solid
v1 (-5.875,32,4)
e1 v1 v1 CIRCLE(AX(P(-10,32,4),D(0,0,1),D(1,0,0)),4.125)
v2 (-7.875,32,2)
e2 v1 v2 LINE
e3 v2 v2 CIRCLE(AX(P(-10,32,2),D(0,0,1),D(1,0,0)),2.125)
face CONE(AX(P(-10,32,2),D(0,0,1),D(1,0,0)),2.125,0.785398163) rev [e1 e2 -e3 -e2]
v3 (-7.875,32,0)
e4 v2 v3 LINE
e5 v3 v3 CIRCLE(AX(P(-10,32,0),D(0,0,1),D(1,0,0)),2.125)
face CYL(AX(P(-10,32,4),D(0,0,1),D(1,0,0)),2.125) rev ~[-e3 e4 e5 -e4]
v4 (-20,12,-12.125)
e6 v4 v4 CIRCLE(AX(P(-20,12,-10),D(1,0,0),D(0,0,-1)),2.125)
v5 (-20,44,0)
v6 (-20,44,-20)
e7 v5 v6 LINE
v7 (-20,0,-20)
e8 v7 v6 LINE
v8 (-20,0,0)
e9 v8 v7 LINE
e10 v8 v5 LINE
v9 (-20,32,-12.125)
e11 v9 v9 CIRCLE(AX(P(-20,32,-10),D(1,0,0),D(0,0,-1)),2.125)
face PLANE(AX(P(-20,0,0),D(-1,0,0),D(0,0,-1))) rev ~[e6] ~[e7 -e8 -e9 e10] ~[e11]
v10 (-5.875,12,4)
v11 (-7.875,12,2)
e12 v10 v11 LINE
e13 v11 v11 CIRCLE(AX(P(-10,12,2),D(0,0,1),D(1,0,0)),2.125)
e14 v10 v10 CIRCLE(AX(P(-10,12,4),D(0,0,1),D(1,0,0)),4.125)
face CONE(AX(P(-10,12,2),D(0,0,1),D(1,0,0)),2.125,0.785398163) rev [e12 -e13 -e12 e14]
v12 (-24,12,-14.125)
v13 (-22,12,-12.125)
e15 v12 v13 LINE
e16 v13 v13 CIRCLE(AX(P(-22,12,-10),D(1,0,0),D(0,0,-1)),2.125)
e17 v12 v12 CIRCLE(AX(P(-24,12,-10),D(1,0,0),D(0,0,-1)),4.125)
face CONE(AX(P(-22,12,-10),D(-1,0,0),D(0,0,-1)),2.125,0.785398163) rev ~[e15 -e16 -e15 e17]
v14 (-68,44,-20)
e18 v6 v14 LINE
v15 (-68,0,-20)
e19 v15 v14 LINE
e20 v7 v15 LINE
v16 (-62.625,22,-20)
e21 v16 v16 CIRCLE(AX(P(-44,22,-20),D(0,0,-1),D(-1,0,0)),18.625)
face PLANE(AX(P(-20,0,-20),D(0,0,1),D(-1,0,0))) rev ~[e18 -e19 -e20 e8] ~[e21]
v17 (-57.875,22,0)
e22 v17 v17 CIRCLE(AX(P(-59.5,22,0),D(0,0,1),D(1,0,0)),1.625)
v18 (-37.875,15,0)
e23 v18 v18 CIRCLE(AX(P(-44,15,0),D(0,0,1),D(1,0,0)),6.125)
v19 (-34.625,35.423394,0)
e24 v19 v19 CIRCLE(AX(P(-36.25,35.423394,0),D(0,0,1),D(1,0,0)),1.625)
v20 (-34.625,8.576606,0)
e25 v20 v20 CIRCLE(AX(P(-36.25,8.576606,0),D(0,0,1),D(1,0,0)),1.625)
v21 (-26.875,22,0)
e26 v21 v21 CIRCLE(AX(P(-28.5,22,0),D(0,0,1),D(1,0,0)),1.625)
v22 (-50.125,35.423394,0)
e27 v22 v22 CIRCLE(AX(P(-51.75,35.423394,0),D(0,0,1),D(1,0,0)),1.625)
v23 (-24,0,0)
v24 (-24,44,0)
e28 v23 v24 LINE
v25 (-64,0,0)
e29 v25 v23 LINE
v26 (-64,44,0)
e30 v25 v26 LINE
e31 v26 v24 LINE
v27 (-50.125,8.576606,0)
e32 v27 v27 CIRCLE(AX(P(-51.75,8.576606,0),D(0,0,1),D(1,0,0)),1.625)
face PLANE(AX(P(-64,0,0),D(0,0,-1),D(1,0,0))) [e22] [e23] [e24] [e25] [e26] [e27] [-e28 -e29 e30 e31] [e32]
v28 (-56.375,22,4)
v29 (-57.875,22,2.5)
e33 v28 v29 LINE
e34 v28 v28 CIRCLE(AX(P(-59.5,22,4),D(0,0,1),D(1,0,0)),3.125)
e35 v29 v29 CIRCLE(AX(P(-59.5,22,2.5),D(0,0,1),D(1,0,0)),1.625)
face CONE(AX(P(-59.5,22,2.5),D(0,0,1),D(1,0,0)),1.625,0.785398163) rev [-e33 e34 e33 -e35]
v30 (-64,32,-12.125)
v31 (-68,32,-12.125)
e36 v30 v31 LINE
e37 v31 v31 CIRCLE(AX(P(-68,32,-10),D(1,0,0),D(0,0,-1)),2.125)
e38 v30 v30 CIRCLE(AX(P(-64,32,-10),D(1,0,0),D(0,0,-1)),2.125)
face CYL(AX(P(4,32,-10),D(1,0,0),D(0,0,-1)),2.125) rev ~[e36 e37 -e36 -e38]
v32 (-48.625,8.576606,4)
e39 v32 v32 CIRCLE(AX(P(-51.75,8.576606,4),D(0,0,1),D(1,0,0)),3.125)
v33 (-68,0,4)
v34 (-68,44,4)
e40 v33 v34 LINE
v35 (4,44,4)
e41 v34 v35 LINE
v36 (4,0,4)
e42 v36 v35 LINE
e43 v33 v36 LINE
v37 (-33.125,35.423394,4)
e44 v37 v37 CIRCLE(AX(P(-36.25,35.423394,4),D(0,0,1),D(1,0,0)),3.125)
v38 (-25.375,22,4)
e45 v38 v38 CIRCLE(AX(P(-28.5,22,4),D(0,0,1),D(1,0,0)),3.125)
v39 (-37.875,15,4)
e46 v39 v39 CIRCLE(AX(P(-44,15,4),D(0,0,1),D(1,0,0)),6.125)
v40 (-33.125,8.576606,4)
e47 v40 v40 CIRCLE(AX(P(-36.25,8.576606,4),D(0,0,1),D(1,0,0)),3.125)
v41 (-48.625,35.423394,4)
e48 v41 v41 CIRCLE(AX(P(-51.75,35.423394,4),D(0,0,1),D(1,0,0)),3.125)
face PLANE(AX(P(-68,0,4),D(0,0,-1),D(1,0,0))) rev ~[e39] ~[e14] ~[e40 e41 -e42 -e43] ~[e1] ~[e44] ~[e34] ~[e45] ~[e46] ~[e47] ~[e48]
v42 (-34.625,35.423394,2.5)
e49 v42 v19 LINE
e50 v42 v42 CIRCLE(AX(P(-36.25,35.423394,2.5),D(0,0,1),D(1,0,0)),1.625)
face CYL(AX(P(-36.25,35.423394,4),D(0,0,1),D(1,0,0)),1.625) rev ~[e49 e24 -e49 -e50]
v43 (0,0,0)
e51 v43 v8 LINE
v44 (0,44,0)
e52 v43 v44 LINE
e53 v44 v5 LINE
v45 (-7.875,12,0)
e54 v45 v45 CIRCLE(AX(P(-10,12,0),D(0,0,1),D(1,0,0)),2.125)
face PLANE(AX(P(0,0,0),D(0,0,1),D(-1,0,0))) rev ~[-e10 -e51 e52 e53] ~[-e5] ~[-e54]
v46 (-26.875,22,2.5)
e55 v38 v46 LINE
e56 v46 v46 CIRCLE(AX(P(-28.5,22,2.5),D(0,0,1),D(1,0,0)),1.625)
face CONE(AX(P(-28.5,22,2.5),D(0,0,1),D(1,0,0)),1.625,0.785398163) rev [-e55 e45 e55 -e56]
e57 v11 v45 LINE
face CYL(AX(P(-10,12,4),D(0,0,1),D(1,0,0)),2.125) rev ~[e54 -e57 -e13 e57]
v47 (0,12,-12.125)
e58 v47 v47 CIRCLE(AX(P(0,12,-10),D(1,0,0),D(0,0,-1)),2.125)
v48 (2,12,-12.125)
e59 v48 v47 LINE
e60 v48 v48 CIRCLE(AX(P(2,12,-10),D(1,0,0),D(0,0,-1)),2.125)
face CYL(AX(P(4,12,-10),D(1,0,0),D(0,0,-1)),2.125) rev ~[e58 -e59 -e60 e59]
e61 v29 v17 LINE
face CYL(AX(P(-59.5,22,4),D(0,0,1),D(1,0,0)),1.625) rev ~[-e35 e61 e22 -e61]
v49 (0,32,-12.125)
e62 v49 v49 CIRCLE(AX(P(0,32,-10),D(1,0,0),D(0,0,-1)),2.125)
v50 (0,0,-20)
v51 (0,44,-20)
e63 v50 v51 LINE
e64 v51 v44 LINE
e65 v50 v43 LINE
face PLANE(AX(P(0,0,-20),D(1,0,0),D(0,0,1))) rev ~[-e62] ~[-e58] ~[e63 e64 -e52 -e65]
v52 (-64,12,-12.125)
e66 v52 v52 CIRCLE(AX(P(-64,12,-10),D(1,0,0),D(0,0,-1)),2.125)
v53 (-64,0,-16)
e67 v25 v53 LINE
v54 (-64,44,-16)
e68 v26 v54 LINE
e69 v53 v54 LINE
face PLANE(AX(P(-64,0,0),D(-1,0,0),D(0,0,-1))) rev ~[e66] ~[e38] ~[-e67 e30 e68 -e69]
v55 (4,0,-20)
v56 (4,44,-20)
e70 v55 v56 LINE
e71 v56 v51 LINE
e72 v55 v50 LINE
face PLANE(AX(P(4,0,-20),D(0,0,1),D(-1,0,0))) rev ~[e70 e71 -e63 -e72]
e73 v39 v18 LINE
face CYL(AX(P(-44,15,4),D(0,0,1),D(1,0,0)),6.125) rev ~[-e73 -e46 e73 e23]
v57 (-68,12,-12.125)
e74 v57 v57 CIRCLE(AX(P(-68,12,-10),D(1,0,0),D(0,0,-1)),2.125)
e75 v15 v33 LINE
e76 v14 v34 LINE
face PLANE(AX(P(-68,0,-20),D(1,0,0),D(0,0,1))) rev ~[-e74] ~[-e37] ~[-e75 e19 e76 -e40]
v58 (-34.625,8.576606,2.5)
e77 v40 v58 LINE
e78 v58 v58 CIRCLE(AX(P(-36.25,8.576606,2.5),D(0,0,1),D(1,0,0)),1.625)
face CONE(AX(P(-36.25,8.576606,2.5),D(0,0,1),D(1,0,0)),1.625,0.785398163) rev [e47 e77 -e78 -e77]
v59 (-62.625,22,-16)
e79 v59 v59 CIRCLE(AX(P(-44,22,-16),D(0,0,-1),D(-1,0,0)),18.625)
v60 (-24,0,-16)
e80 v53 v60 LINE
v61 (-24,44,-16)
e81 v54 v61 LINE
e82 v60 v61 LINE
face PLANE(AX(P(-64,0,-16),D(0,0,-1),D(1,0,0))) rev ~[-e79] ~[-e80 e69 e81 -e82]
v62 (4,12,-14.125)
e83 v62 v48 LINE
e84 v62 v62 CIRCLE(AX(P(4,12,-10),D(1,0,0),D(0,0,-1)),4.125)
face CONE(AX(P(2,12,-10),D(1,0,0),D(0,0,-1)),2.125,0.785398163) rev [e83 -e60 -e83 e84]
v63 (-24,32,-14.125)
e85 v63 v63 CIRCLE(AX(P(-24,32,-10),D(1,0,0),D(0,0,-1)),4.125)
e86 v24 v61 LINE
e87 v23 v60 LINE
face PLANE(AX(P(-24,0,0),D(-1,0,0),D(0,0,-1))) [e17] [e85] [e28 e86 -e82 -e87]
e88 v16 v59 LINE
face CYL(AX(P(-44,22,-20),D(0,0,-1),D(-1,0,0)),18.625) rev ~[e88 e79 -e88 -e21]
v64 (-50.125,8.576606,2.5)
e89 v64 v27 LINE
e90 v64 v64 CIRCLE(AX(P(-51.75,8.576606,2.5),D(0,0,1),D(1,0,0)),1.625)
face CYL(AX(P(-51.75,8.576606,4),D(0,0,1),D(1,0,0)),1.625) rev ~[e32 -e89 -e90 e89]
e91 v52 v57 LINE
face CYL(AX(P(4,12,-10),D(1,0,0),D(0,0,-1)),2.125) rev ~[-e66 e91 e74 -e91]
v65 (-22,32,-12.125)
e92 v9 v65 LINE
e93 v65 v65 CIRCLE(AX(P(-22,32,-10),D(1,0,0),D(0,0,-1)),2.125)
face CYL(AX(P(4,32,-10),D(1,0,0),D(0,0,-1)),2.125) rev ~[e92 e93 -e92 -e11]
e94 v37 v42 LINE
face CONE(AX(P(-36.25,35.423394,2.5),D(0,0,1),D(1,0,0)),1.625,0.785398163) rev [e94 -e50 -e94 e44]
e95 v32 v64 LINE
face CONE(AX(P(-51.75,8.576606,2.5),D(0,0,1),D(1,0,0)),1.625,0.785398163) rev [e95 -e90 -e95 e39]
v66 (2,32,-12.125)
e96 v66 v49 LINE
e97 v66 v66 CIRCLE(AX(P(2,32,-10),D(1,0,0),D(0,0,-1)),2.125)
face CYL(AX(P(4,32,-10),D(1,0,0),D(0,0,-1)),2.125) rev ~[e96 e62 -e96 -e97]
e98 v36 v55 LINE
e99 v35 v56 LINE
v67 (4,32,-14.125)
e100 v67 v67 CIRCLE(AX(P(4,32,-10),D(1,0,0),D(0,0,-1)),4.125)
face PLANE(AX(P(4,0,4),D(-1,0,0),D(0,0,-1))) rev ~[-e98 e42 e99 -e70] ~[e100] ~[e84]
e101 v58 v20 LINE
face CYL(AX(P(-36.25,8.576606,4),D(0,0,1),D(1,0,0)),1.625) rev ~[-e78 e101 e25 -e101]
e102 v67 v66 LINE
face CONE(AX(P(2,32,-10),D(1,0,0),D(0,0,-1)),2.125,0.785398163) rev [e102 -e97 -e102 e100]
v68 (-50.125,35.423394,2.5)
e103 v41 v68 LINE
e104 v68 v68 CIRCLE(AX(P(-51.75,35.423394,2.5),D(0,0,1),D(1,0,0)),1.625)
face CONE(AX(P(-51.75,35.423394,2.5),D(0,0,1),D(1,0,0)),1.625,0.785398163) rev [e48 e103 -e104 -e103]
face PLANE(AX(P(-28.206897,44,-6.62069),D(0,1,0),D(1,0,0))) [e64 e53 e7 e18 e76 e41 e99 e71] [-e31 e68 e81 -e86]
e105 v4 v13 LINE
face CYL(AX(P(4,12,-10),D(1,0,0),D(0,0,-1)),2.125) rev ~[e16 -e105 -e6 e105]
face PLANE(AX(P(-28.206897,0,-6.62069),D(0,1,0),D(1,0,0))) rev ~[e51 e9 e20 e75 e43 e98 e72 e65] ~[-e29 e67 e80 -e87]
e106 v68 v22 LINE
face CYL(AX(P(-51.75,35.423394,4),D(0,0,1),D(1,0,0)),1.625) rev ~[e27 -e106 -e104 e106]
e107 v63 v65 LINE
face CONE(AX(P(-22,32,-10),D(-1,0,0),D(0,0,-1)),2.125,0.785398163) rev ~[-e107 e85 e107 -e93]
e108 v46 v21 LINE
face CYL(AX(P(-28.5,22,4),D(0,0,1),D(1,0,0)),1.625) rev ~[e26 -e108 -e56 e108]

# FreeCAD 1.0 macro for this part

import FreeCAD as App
import Part
import Sketcher
from FreeCAD import Vector
Q = App.Units.Quantity


def edges_at(feature, points):
    """Names of the edges that pass closest to the given points."""
    edges = feature.Shape.Edges
    near = lambda p: min(range(len(edges)), key=lambda i: edges[i].distToShape(Part.Vertex(*p))[0])
    return sorted({f"Edge{near(p) + 1}" for p in points})


def add_polygon(sketch, points):
    """Adds a closed chain of lines whose ends are joined by coincident constraints."""
    first, n = sketch.GeometryCount, len(points)
    for a, b in zip(points, points[1:] + points[:1]):
        sketch.addGeometry(Part.LineSegment(App.Vector(*a, 0), App.Vector(*b, 0)), False)
    for i in range(n):
        sketch.addConstraint(Sketcher.Constraint("Coincident", first + i, 2, first + (i + 1) % n, 1))

doc = App.newDocument("Part")
params = doc.addObject("Spreadsheet::Sheet", "Params")
for row, (alias, value) in enumerate([
    ("sketch1_width", "4 mm"),
    ("sketch1_width2", "20 mm"),
    ("sketch1_width3", "48 mm"),
    ("sketch1_width4", "40 mm"),
    ("sketch1_height", "24 mm"),
    ("pad1_length", "44 mm"),
    ("sketch2_diameter", "37.25 mm"),
    ("sketch3_diameter", "12.25 mm"),
    ("sketch4_diameter", "3.25 mm"),
    ("sketch5_diameter", "3.25 mm"),
    ("sketch6_diameter", "3.25 mm"),
    ("sketch7_diameter", "3.25 mm"),
    ("sketch8_diameter", "3.25 mm"),
    ("sketch9_diameter", "3.25 mm"),
    ("sketch10_diameter", "4.25 mm"),
    ("sketch11_diameter", "4.25 mm"),
    ("chamfer_size", "2 mm"),
    ("chamfer2_size", "1.5 mm"),
], start=1):
    params.set(f"A{row}", alias)
    params.set(f"B{row}", "=" + value)
    params.setAlias(f"B{row}", alias)

body = doc.addObject("PartDesign::Body", "Body")

# Sketch on XZ plane
sketch1 = body.newObject("Sketcher::SketchObject", "Sketch")
sketch1.AttachmentSupport = (doc.getObject("XZ_Plane"), [""])
sketch1.MapMode = "FlatFace"
add_polygon(sketch1, [(4, -20), (0, -20), (0, 0), (-20, 0), (-20, -20), (-68, -20), (-68, 4), (4, 4)])  # lines 0-7
add_polygon(sketch1, [(-24, 0), (-64, 0), (-64, -16), (-24, -16)])  # lines 8-11
sketch1.addConstraint(Sketcher.Constraint("Horizontal", 0))
sketch1.addConstraint(Sketcher.Constraint("Vertical", 1))
sketch1.addConstraint(Sketcher.Constraint("Horizontal", 2))
sketch1.addConstraint(Sketcher.Constraint("Vertical", 3))
sketch1.addConstraint(Sketcher.Constraint("Horizontal", 4))
sketch1.addConstraint(Sketcher.Constraint("Vertical", 5))
sketch1.addConstraint(Sketcher.Constraint("Horizontal", 6))
sketch1.addConstraint(Sketcher.Constraint("Vertical", 7))
sketch1.addConstraint(Sketcher.Constraint("Horizontal", 8))
sketch1.addConstraint(Sketcher.Constraint("Vertical", 9))
sketch1.addConstraint(Sketcher.Constraint("Horizontal", 10))
sketch1.addConstraint(Sketcher.Constraint("Vertical", 11))
sketch1.addConstraint(Sketcher.Constraint("Coincident", 1, 2, -1, 1))
sketch1.addConstraint(Sketcher.Constraint("PointOnObject", 8, 2, -1))
sketch1.addConstraint(Sketcher.Constraint("Horizontal", 0, 2, 3, 2))
sketch1.addConstraint(Sketcher.Constraint("Equal", 2, 1))
sketch1.addConstraint(Sketcher.Constraint("DistanceX", 0, 2, 0, 1, Q("4 mm")))
sketch1.addConstraint(Sketcher.Constraint("DistanceX", 2, 2, 2, 1, Q("20 mm")))
sketch1.addConstraint(Sketcher.Constraint("DistanceX", 4, 2, 4, 1, Q("48 mm")))
sketch1.addConstraint(Sketcher.Constraint("DistanceX", 8, 2, 8, 1, Q("40 mm")))
sketch1.addConstraint(Sketcher.Constraint("DistanceY", 5, 1, 5, 2, Q("24 mm")))
sketch1.addConstraint(Sketcher.Constraint("DistanceY", 9, 2, 9, 1, Q("16 mm")))
sketch1.addConstraint(Sketcher.Constraint("DistanceX", 8, 2, -1, 1, Q("64 mm")))
sketch1.setExpression("Constraints[28]", "Params.sketch1_width")
sketch1.setExpression("Constraints[29]", "Params.sketch1_width2")
sketch1.setExpression("Constraints[30]", "Params.sketch1_width3")
sketch1.setExpression("Constraints[31]", "Params.sketch1_width4")
sketch1.setExpression("Constraints[32]", "Params.sketch1_height")
pad1 = body.newObject("PartDesign::Pad", "Pad")
pad1.Profile = sketch1
pad1.setExpression("Length", "Params.pad1_length")
pad1.Reversed = True

# Sketch on XY plane
sketch2 = body.newObject("Sketcher::SketchObject", "Sketch001")
sketch2.AttachmentSupport = (doc.getObject("XY_Plane"), [""])
sketch2.MapMode = "FlatFace"
sketch2.AttachmentOffset = App.Placement(Vector(0, 0, -20), App.Rotation())
sketch2.addGeometry(Part.Circle(Vector(-44, 22, 0), Vector(0, 0, 1), 19), False)
sketch2.addConstraint(Sketcher.Constraint("Diameter", 0, Q("37.25 mm")))
sketch2.addConstraint(Sketcher.Constraint("DistanceX", 0, 3, -1, 1, Q("44 mm")))
sketch2.addConstraint(Sketcher.Constraint("DistanceY", -1, 1, 0, 3, Q("22 mm")))
sketch2.setExpression("Constraints[0]", "Params.sketch2_diameter")
pocket1 = body.newObject("PartDesign::Pocket", "Pocket")
pocket1.Profile = sketch2
pocket1.Type = "UpToFirst"
pocket1.Reversed = True

# Sketch on XY plane
sketch3 = body.newObject("Sketcher::SketchObject", "Sketch002")
sketch3.AttachmentSupport = (doc.getObject("XY_Plane"), [""])
sketch3.MapMode = "FlatFace"
sketch3.AttachmentOffset = App.Placement(Vector(0, 0, 4), App.Rotation())
sketch3.addGeometry(Part.Circle(Vector(-44, 15, 0), Vector(0, 0, 1), 6), False)
sketch3.addConstraint(Sketcher.Constraint("Diameter", 0, Q("12.25 mm")))
sketch3.addConstraint(Sketcher.Constraint("DistanceX", 0, 3, -1, 1, Q("44 mm")))
sketch3.addConstraint(Sketcher.Constraint("DistanceY", -1, 1, 0, 3, Q("15 mm")))
sketch3.setExpression("Constraints[0]", "Params.sketch3_diameter")
pocket2 = body.newObject("PartDesign::Pocket", "Pocket001")
pocket2.Profile = sketch3
pocket2.Type = "UpToFirst"

# Sketch on XY plane
sketch4 = body.newObject("Sketcher::SketchObject", "Sketch003")
sketch4.AttachmentSupport = (doc.getObject("XY_Plane"), [""])
sketch4.MapMode = "FlatFace"
sketch4.AttachmentOffset = App.Placement(Vector(0, 0, 4), App.Rotation())
sketch4.addGeometry(Part.Circle(Vector(-51.8, 35.4, 0), Vector(0, 0, 1), 1.6), False)
sketch4.addConstraint(Sketcher.Constraint("Diameter", 0, Q("3.25 mm")))
sketch4.addConstraint(Sketcher.Constraint("DistanceX", 0, 3, -1, 1, Q("51.75 mm")))
sketch4.addConstraint(Sketcher.Constraint("DistanceY", -1, 1, 0, 3, Q("35.423394 mm")))
sketch4.setExpression("Constraints[0]", "Params.sketch4_diameter")
pocket3 = body.newObject("PartDesign::Pocket", "Pocket002")
pocket3.Profile = sketch4
pocket3.Type = "UpToFirst"

# Sketch on XY plane
sketch5 = body.newObject("Sketcher::SketchObject", "Sketch004")
sketch5.AttachmentSupport = (doc.getObject("XY_Plane"), [""])
sketch5.MapMode = "FlatFace"
sketch5.AttachmentOffset = App.Placement(Vector(0, 0, 4), App.Rotation())
sketch5.addGeometry(Part.Circle(Vector(-36.2, 35.4, 0), Vector(0, 0, 1), 1.6), False)
sketch5.addConstraint(Sketcher.Constraint("Diameter", 0, Q("3.25 mm")))
sketch5.addConstraint(Sketcher.Constraint("DistanceX", 0, 3, -1, 1, Q("36.25 mm")))
sketch5.addConstraint(Sketcher.Constraint("DistanceY", -1, 1, 0, 3, Q("35.423394 mm")))
sketch5.setExpression("Constraints[0]", "Params.sketch5_diameter")
pocket4 = body.newObject("PartDesign::Pocket", "Pocket003")
pocket4.Profile = sketch5
pocket4.Type = "UpToFirst"

# Sketch on XY plane
sketch6 = body.newObject("Sketcher::SketchObject", "Sketch005")
sketch6.AttachmentSupport = (doc.getObject("XY_Plane"), [""])
sketch6.MapMode = "FlatFace"
sketch6.AttachmentOffset = App.Placement(Vector(0, 0, 4), App.Rotation())
sketch6.addGeometry(Part.Circle(Vector(-28.5, 22, 0), Vector(0, 0, 1), 1.6), False)
sketch6.addConstraint(Sketcher.Constraint("Diameter", 0, Q("3.25 mm")))
sketch6.addConstraint(Sketcher.Constraint("DistanceY", -1, 1, 0, 3, Q("22 mm")))
sketch6.addConstraint(Sketcher.Constraint("DistanceX", 0, 3, -1, 1, Q("28.5 mm")))
sketch6.setExpression("Constraints[0]", "Params.sketch6_diameter")
pocket5 = body.newObject("PartDesign::Pocket", "Pocket004")
pocket5.Profile = sketch6
pocket5.Type = "UpToFirst"

# Sketch on XY plane
sketch7 = body.newObject("Sketcher::SketchObject", "Sketch006")
sketch7.AttachmentSupport = (doc.getObject("XY_Plane"), [""])
sketch7.MapMode = "FlatFace"
sketch7.AttachmentOffset = App.Placement(Vector(0, 0, 4), App.Rotation())
sketch7.addGeometry(Part.Circle(Vector(-36.2, 8.6, 0), Vector(0, 0, 1), 1.6), False)
sketch7.addConstraint(Sketcher.Constraint("Diameter", 0, Q("3.25 mm")))
sketch7.addConstraint(Sketcher.Constraint("DistanceX", 0, 3, -1, 1, Q("36.25 mm")))
sketch7.addConstraint(Sketcher.Constraint("DistanceY", -1, 1, 0, 3, Q("8.576606 mm")))
sketch7.setExpression("Constraints[0]", "Params.sketch7_diameter")
pocket6 = body.newObject("PartDesign::Pocket", "Pocket005")
pocket6.Profile = sketch7
pocket6.Type = "UpToFirst"

# Sketch on XY plane
sketch8 = body.newObject("Sketcher::SketchObject", "Sketch007")
sketch8.AttachmentSupport = (doc.getObject("XY_Plane"), [""])
sketch8.MapMode = "FlatFace"
sketch8.AttachmentOffset = App.Placement(Vector(0, 0, 4), App.Rotation())
sketch8.addGeometry(Part.Circle(Vector(-51.8, 8.6, 0), Vector(0, 0, 1), 1.6), False)
sketch8.addConstraint(Sketcher.Constraint("Diameter", 0, Q("3.25 mm")))
sketch8.addConstraint(Sketcher.Constraint("DistanceX", 0, 3, -1, 1, Q("51.75 mm")))
sketch8.addConstraint(Sketcher.Constraint("DistanceY", -1, 1, 0, 3, Q("8.576606 mm")))
sketch8.setExpression("Constraints[0]", "Params.sketch8_diameter")
pocket7 = body.newObject("PartDesign::Pocket", "Pocket006")
pocket7.Profile = sketch8
pocket7.Type = "UpToFirst"

# Sketch on XY plane
sketch9 = body.newObject("Sketcher::SketchObject", "Sketch008")
sketch9.AttachmentSupport = (doc.getObject("XY_Plane"), [""])
sketch9.MapMode = "FlatFace"
sketch9.AttachmentOffset = App.Placement(Vector(0, 0, 4), App.Rotation())
sketch9.addGeometry(Part.Circle(Vector(-59.5, 22, 0), Vector(0, 0, 1), 1.6), False)
sketch9.addConstraint(Sketcher.Constraint("Diameter", 0, Q("3.25 mm")))
sketch9.addConstraint(Sketcher.Constraint("DistanceY", -1, 1, 0, 3, Q("22 mm")))
sketch9.addConstraint(Sketcher.Constraint("DistanceX", 0, 3, -1, 1, Q("59.5 mm")))
sketch9.setExpression("Constraints[0]", "Params.sketch9_diameter")
pocket8 = body.newObject("PartDesign::Pocket", "Pocket007")
pocket8.Profile = sketch9
pocket8.Type = "UpToFirst"

# Sketch on YZ plane
sketch10 = body.newObject("Sketcher::SketchObject", "Sketch009")
sketch10.AttachmentSupport = (doc.getObject("YZ_Plane"), [""])
sketch10.MapMode = "FlatFace"
sketch10.AttachmentOffset = App.Placement(Vector(0, 0, 4), App.Rotation())
sketch10.addGeometry(Part.Circle(Vector(32, -10, 0), Vector(0, 0, 1), 2.1), False)
sketch10.addGeometry(Part.Circle(Vector(12, -10, 0), Vector(0, 0, 1), 2.1), False)
sketch10.addConstraint(Sketcher.Constraint("Equal", 0, 1))
sketch10.addConstraint(Sketcher.Constraint("Horizontal", 0, 3, 1, 3))
sketch10.addConstraint(Sketcher.Constraint("Diameter", 0, Q("4.25 mm")))
sketch10.addConstraint(Sketcher.Constraint("DistanceX", -1, 1, 0, 3, Q("32 mm")))
sketch10.addConstraint(Sketcher.Constraint("DistanceY", 0, 3, -1, 1, Q("10 mm")))
sketch10.addConstraint(Sketcher.Constraint("DistanceX", -1, 1, 1, 3, Q("12 mm")))
sketch10.setExpression("Constraints[2]", "Params.sketch10_diameter")
pocket9 = body.newObject("PartDesign::Pocket", "Pocket008")
pocket9.Profile = sketch10
pocket9.Type = "ThroughAll"

# Sketch on XY plane
sketch11 = body.newObject("Sketcher::SketchObject", "Sketch010")
sketch11.AttachmentSupport = (doc.getObject("XY_Plane"), [""])
sketch11.MapMode = "FlatFace"
sketch11.AttachmentOffset = App.Placement(Vector(0, 0, 4), App.Rotation())
sketch11.addGeometry(Part.Circle(Vector(-10, 32, 0), Vector(0, 0, 1), 2.1), False)
sketch11.addGeometry(Part.Circle(Vector(-10, 12, 0), Vector(0, 0, 1), 2.1), False)
sketch11.addConstraint(Sketcher.Constraint("Equal", 0, 1))
sketch11.addConstraint(Sketcher.Constraint("Vertical", 0, 3, 1, 3))
sketch11.addConstraint(Sketcher.Constraint("Diameter", 0, Q("4.25 mm")))
sketch11.addConstraint(Sketcher.Constraint("DistanceX", 0, 3, -1, 1, Q("10 mm")))
sketch11.addConstraint(Sketcher.Constraint("DistanceY", -1, 1, 0, 3, Q("32 mm")))
sketch11.addConstraint(Sketcher.Constraint("DistanceY", -1, 1, 1, 3, Q("12 mm")))
sketch11.setExpression("Constraints[2]", "Params.sketch11_diameter")
pocket10 = body.newObject("PartDesign::Pocket", "Pocket009")
pocket10.Profile = sketch11
pocket10.Type = "ThroughAll"
doc.recompute()

chamfer = body.newObject("PartDesign::Chamfer", "Chamfer")
chamfer.Base = (pocket10, edges_at(pocket10, [
    (-12.125, 32, 4),
    (-12.125, 12, 4),
    (-24, 32, -7.875),
    (4, 32, -7.875),
    (-24, 12, -7.875),
    (4, 12, -7.875),
]))
chamfer.setExpression("Size", "Params.chamfer_size")
doc.recompute()

chamfer2 = body.newObject("PartDesign::Chamfer", "Chamfer001")
chamfer2.Base = (chamfer, edges_at(chamfer, [
    (-53.375, 35.423, 4),
    (-37.875, 35.423, 4),
    (-30.125, 22, 4),
    (-37.875, 8.577, 4),
    (-53.375, 8.577, 4),
    (-61.125, 22, 4),
]))
chamfer2.setExpression("Size", "Params.chamfer2_size")

doc.recompute()
